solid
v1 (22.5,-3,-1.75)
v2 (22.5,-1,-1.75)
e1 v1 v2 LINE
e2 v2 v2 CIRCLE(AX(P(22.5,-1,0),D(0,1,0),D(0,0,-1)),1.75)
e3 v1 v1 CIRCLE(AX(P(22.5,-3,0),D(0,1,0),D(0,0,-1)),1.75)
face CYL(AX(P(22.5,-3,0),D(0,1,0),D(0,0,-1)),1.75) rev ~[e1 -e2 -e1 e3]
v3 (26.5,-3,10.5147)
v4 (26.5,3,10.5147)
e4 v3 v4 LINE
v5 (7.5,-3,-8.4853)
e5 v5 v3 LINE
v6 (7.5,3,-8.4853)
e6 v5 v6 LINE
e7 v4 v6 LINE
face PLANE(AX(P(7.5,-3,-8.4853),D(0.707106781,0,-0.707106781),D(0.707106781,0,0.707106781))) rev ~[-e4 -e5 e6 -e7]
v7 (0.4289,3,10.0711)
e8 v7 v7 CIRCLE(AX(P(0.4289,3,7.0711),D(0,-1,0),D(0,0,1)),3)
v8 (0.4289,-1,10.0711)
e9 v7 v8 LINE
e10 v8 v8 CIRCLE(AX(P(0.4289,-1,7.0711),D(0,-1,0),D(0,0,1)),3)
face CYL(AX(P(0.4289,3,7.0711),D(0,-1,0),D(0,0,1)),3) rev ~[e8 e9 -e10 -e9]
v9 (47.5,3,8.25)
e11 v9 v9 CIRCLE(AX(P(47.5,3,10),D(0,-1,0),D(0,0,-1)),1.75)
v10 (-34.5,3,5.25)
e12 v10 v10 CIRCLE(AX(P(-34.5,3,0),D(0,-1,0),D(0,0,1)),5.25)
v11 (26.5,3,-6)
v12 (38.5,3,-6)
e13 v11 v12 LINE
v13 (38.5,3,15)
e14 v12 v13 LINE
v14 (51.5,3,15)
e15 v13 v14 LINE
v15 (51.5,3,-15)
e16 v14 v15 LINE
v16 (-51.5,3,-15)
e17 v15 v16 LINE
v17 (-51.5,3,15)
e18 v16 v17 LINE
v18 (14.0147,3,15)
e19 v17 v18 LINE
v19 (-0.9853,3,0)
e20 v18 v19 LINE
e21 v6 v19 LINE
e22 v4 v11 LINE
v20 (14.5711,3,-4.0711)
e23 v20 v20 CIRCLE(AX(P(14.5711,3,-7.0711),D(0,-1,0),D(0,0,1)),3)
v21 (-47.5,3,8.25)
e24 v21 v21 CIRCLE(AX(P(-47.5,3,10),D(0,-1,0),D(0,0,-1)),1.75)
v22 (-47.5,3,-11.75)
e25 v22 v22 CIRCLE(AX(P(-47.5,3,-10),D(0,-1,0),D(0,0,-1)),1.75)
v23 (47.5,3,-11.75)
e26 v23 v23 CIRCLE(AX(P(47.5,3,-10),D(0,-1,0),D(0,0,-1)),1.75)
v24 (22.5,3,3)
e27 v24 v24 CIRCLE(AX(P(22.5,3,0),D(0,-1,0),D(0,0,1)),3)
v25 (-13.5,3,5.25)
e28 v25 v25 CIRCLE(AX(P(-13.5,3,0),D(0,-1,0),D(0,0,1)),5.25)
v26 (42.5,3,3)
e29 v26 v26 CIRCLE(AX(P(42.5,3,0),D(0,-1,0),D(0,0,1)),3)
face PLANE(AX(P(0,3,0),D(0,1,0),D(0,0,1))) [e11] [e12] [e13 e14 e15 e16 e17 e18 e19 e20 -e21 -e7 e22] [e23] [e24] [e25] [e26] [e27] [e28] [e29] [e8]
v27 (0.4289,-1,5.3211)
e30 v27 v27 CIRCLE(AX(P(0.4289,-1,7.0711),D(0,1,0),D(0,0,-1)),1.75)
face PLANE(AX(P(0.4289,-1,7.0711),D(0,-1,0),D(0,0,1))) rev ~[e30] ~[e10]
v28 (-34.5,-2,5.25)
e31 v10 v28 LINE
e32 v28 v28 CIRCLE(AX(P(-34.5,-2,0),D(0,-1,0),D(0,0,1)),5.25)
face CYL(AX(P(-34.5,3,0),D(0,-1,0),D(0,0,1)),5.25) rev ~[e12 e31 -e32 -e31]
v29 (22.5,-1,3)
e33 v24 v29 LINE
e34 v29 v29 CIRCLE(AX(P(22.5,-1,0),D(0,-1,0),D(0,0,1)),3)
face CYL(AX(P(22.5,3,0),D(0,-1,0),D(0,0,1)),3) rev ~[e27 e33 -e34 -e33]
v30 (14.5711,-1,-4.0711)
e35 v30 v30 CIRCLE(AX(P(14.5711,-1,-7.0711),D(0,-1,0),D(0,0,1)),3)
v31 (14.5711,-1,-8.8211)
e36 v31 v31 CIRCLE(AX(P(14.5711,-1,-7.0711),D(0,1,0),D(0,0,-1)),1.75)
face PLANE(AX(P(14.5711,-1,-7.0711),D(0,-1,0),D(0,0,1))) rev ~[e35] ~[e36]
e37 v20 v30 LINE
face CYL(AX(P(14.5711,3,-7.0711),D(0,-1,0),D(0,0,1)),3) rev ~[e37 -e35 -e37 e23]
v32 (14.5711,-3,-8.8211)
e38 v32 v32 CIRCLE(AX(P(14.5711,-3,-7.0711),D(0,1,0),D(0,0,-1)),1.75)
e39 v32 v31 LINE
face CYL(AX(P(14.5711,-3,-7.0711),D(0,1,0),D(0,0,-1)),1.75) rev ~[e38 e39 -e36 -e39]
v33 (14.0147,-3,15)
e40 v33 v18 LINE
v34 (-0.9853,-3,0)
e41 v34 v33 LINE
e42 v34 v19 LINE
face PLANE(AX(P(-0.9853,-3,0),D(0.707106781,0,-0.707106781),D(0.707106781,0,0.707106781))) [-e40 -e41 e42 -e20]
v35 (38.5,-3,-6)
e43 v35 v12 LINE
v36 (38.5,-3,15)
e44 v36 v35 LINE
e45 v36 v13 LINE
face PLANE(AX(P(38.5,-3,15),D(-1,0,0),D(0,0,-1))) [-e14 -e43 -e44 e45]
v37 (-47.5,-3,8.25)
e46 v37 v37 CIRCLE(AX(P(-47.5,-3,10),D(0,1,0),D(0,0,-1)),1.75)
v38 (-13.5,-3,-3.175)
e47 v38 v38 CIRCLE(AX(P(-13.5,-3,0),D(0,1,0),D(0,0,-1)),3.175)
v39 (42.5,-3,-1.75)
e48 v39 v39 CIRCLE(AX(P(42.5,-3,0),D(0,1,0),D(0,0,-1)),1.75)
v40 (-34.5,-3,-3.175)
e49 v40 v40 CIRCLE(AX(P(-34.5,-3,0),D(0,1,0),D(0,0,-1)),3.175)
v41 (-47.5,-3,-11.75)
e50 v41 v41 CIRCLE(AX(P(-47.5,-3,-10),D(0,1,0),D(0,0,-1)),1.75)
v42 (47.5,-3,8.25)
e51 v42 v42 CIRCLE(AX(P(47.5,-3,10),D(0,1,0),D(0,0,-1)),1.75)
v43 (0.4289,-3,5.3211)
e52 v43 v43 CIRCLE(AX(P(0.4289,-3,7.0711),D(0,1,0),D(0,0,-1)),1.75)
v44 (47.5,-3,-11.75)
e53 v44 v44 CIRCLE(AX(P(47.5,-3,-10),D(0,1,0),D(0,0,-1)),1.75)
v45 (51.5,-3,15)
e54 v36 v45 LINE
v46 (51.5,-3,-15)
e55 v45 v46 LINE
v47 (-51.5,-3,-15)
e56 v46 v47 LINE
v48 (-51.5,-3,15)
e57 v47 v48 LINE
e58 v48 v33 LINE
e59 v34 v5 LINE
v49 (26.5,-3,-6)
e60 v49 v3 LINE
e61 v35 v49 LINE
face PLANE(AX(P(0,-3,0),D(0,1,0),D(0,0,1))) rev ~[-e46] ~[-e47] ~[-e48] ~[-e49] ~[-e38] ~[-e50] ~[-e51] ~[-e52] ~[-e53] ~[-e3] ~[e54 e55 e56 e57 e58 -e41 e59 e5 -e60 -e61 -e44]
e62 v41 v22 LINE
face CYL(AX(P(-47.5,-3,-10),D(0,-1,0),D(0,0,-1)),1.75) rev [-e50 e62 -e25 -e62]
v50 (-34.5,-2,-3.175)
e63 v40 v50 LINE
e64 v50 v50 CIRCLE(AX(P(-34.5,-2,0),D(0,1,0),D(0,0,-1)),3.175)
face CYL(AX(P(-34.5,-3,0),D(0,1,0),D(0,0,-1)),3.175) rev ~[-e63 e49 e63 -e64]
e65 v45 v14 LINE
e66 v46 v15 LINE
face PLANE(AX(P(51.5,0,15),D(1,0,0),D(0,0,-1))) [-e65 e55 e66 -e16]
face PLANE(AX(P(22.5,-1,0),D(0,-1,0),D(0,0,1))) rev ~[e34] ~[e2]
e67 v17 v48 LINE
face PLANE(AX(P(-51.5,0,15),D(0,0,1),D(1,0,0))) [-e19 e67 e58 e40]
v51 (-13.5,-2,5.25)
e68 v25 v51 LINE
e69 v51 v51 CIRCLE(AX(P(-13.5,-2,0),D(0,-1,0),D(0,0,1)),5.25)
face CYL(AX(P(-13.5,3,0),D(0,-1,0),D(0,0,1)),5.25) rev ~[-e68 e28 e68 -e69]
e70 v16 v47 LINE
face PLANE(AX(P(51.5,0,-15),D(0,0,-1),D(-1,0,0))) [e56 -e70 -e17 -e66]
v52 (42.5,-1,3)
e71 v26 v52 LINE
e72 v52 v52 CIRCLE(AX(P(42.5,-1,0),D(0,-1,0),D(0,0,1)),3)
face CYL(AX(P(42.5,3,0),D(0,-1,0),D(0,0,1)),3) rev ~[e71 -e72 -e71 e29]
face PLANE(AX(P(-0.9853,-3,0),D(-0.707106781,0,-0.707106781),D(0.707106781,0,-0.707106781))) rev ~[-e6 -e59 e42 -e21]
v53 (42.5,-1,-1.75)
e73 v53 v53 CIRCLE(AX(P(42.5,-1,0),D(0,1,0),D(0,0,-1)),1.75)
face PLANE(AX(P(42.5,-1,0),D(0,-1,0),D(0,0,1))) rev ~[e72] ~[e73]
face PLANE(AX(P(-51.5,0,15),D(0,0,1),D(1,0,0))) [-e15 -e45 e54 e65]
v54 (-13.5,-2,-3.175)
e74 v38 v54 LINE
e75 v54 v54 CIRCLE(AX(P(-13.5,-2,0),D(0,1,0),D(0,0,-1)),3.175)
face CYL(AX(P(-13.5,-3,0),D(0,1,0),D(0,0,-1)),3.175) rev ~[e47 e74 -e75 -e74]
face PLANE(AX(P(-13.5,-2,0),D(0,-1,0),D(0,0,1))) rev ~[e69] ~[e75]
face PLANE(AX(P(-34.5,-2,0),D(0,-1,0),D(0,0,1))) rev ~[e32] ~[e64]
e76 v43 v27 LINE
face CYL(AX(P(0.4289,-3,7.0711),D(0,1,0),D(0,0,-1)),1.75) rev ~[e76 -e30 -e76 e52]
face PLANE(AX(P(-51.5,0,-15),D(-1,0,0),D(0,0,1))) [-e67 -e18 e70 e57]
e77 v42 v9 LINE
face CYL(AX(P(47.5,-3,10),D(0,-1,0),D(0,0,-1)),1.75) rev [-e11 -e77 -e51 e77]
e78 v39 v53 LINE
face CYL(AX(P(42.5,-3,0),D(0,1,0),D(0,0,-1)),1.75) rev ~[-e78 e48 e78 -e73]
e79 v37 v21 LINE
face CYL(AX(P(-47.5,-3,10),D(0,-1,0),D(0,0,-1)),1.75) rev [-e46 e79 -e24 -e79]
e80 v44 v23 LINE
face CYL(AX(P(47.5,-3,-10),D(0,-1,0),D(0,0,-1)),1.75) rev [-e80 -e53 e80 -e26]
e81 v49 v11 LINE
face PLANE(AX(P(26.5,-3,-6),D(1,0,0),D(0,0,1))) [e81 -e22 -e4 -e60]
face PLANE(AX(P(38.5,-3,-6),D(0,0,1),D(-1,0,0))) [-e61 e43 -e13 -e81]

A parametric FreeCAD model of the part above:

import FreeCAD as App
import Part
import Sketcher
from FreeCAD import Vector
Q = App.Units.Quantity

doc = App.newDocument("Part")
body = doc.addObject("PartDesign::Body", "Body")

# Sketch on XZ plane
sketch1 = body.newObject("Sketcher::SketchObject", "Sketch")
sketch1.AttachmentSupport = (doc.getObject("XZ_Plane"), [""])
sketch1.MapMode = "FlatFace"
sketch1.addGeometry([
    Part.LineSegment(Vector(52, 15, 0), Vector(-52, 15, 0)),
    Part.LineSegment(Vector(-52, 15, 0), Vector(-52, -15, 0)),
    Part.LineSegment(Vector(-52, -15, 0), Vector(52, -15, 0)),
    Part.LineSegment(Vector(52, -15, 0), Vector(52, 15, 0)),
], False)
sketch1.addConstraint([
    Sketcher.Constraint("Coincident", 0, 2, 1, 1),
    Sketcher.Constraint("Coincident", 1, 2, 2, 1),
    Sketcher.Constraint("Coincident", 2, 2, 3, 1),
    Sketcher.Constraint("Coincident", 3, 2, 0, 1),
    Sketcher.Constraint("Horizontal", 0),
    Sketcher.Constraint("Vertical", 1),
    Sketcher.Constraint("Horizontal", 2),
    Sketcher.Constraint("Vertical", 3),
    Sketcher.Constraint("Symmetric", 0, 2, 2, 2, -1, 1),
    Sketcher.Constraint("DistanceX", 0, 2, -1, 1, Q("51.5 mm")),
    Sketcher.Constraint("DistanceY", 1, 2, 1, 1, Q("30 mm")),
])
pad1 = body.newObject("PartDesign::Pad", "Pad")
pad1.Profile = sketch1
pad1.Length = 6
pad1.Midplane = True

# Sketch on XZ plane
sketch2 = body.newObject("Sketcher::SketchObject", "Sketch001")
sketch2.AttachmentSupport = (doc.getObject("XZ_Plane"), [""])
sketch2.MapMode = "FlatFace"
sketch2.AttachmentOffset = App.Placement(Vector(0, 0, 3), App.Rotation())
sketch2.addGeometry(Part.Circle(Vector(47.5, 10, 0), Vector(0, 0, 1), 1.8), False)
sketch2.addConstraint([
    Sketcher.Constraint("Diameter", 0, Q("3.5 mm")),
    Sketcher.Constraint("DistanceY", -1, 1, 0, 3, Q("10 mm")),
    Sketcher.Constraint("DistanceX", -1, 1, 0, 3, Q("47.5 mm")),
])
doc.recompute()
hole = body.newObject("PartDesign::Hole", "Hole")
hole.Profile = sketch2
hole.ThreadType = "None"
hole.Diameter = 3.5
hole.DepthType = "ThroughAll"

# Sketch on XZ plane
sketch3 = body.newObject("Sketcher::SketchObject", "Sketch002")
sketch3.AttachmentSupport = (doc.getObject("XZ_Plane"), [""])
sketch3.MapMode = "FlatFace"
sketch3.AttachmentOffset = App.Placement(Vector(0, 0, 3), App.Rotation())
sketch3.addGeometry(Part.Circle(Vector(47.5, -10, 0), Vector(0, 0, 1), 1.8), False)
sketch3.addConstraint([
    Sketcher.Constraint("Diameter", 0, Q("3.5 mm")),
    Sketcher.Constraint("DistanceY", 0, 3, -1, 1, Q("10 mm")),
    Sketcher.Constraint("DistanceX", -1, 1, 0, 3, Q("47.5 mm")),
])
doc.recompute()
hole2 = body.newObject("PartDesign::Hole", "Hole001")
hole2.Profile = sketch3
hole2.ThreadType = "None"
hole2.Diameter = 3.5
hole2.DepthType = "ThroughAll"

# Sketch on XZ plane
sketch4 = body.newObject("Sketcher::SketchObject", "Sketch003")
sketch4.AttachmentSupport = (doc.getObject("XZ_Plane"), [""])
sketch4.MapMode = "FlatFace"
sketch4.AttachmentOffset = App.Placement(Vector(0, 0, 3), App.Rotation())
sketch4.addGeometry(Part.Circle(Vector(-47.5, -10, 0), Vector(0, 0, 1), 1.8), False)
sketch4.addConstraint([
    Sketcher.Constraint("Diameter", 0, Q("3.5 mm")),
    Sketcher.Constraint("DistanceY", 0, 3, -1, 1, Q("10 mm")),
    Sketcher.Constraint("DistanceX", 0, 3, -1, 1, Q("47.5 mm")),
])
doc.recompute()
hole3 = body.newObject("PartDesign::Hole", "Hole002")
hole3.Profile = sketch4
hole3.ThreadType = "None"
hole3.Diameter = 3.5
hole3.DepthType = "ThroughAll"

# Sketch on XZ plane
sketch5 = body.newObject("Sketcher::SketchObject", "Sketch004")
sketch5.AttachmentSupport = (doc.getObject("XZ_Plane"), [""])
sketch5.MapMode = "FlatFace"
sketch5.AttachmentOffset = App.Placement(Vector(0, 0, 3), App.Rotation())
sketch5.addGeometry(Part.Circle(Vector(-47.5, 10, 0), Vector(0, 0, 1), 1.8), False)
sketch5.addConstraint([
    Sketcher.Constraint("Diameter", 0, Q("3.5 mm")),
    Sketcher.Constraint("DistanceY", -1, 1, 0, 3, Q("10 mm")),
    Sketcher.Constraint("DistanceX", 0, 3, -1, 1, Q("47.5 mm")),
])
doc.recompute()
hole4 = body.newObject("PartDesign::Hole", "Hole003")
hole4.Profile = sketch5
hole4.ThreadType = "None"
hole4.Diameter = 3.5
hole4.DepthType = "ThroughAll"

# Sketch on XZ plane
sketch6 = body.newObject("Sketcher::SketchObject", "Sketch005")
sketch6.AttachmentSupport = (doc.getObject("XZ_Plane"), [""])
sketch6.MapMode = "FlatFace"
sketch6.AttachmentOffset = App.Placement(Vector(0, 0, 3), App.Rotation())
sketch6.addGeometry([
    Part.LineSegment(Vector(38, 15, 0), Vector(26, 15, 0)),
    Part.LineSegment(Vector(26, 15, 0), Vector(26, -6, 0)),
    Part.LineSegment(Vector(26, -6, 0), Vector(38, -6, 0)),
    Part.LineSegment(Vector(38, -6, 0), Vector(38, 15, 0)),
], False)
sketch6.addConstraint([
    Sketcher.Constraint("Coincident", 0, 2, 1, 1),
    Sketcher.Constraint("Coincident", 1, 2, 2, 1),
    Sketcher.Constraint("Coincident", 2, 2, 3, 1),
    Sketcher.Constraint("Coincident", 3, 2, 0, 1),
    Sketcher.Constraint("Horizontal", 0),
    Sketcher.Constraint("Vertical", 1),
    Sketcher.Constraint("Horizontal", 2),
    Sketcher.Constraint("Vertical", 3),
    Sketcher.Constraint("DistanceX", -1, 1, 0, 2, Q("26.5 mm")),
    Sketcher.Constraint("DistanceX", -1, 1, 2, 2, Q("38.5 mm")),
    Sketcher.Constraint("DistanceY", 1, 2, 1, 1, Q("21 mm")),
    Sketcher.Constraint("DistanceY", -1, 1, 0, 2, Q("15 mm")),
])
pocket1 = body.newObject("PartDesign::Pocket", "Pocket")
pocket1.Profile = sketch6
pocket1.Length = 168.275

# Sketch on XZ plane
sketch7 = body.newObject("Sketcher::SketchObject", "Sketch006")
sketch7.AttachmentSupport = (doc.getObject("XZ_Plane"), [""])
sketch7.MapMode = "FlatFace"
sketch7.AttachmentOffset = App.Placement(Vector(0, 0, 3), App.Rotation())
sketch7.addGeometry(Part.Circle(Vector(22.5, 0, 0), Vector(0, 0, 1), 1.8), False)
sketch7.addConstraint([
    Sketcher.Constraint("PointOnObject", 0, 3, -1),
    Sketcher.Constraint("Diameter", 0, Q("3.5 mm")),
    Sketcher.Constraint("DistanceX", -1, 1, 0, 3, Q("22.5 mm")),
])
doc.recompute()
hole5 = body.newObject("PartDesign::Hole", "Hole004")
hole5.Profile = sketch7
hole5.ThreadType = "None"
hole5.Diameter = 3.5
hole5.DepthType = "Dimension"
hole5.Depth = 2
hole5.DrillPoint = "Flat"

# Sketch on XZ plane
sketch8 = body.newObject("Sketcher::SketchObject", "Sketch007")
sketch8.AttachmentSupport = (doc.getObject("XZ_Plane"), [""])
sketch8.MapMode = "FlatFace"
sketch8.AttachmentOffset = App.Placement(Vector(0, 0, 3), App.Rotation())
sketch8.addGeometry(Part.Circle(Vector(42.5, 0, 0), Vector(0, 0, 1), 1.8), False)
sketch8.addConstraint([
    Sketcher.Constraint("PointOnObject", 0, 3, -1),
    Sketcher.Constraint("Diameter", 0, Q("3.5 mm")),
    Sketcher.Constraint("DistanceX", -1, 1, 0, 3, Q("42.5 mm")),
])
doc.recompute()
hole6 = body.newObject("PartDesign::Hole", "Hole005")
hole6.Profile = sketch8
hole6.ThreadType = "None"
hole6.Diameter = 3.5
hole6.DepthType = "Dimension"
hole6.Depth = 2
hole6.DrillPoint = "Flat"

# Sketch on XZ plane
sketch9 = body.newObject("Sketcher::SketchObject", "Sketch008")
sketch9.AttachmentSupport = (doc.getObject("XZ_Plane"), [""])
sketch9.MapMode = "FlatFace"
sketch9.AttachmentOffset = App.Placement(Vector(0, 0, 3), App.Rotation())
sketch9.addGeometry(Part.Circle(Vector(-34.5, 0, 0), Vector(0, 0, 1), 3.2), False)
sketch9.addConstraint([
    Sketcher.Constraint("PointOnObject", 0, 3, -1),
    Sketcher.Constraint("Diameter", 0, Q("6.35 mm")),
    Sketcher.Constraint("DistanceX", 0, 3, -1, 1, Q("34.5 mm")),
])
doc.recompute()
hole7 = body.newObject("PartDesign::Hole", "Hole006")
hole7.Profile = sketch9
hole7.ThreadType = "None"
hole7.Diameter = 6.35
hole7.DepthType = "Dimension"
hole7.Depth = 1
hole7.DrillPoint = "Flat"

# Sketch on XZ plane
sketch10 = body.newObject("Sketcher::SketchObject", "Sketch009")
sketch10.AttachmentSupport = (doc.getObject("XZ_Plane"), [""])
sketch10.MapMode = "FlatFace"
sketch10.AttachmentOffset = App.Placement(Vector(0, 0, 3), App.Rotation())
sketch10.addGeometry(Part.Circle(Vector(-13.5, 0, 0), Vector(0, 0, 1), 3.2), False)
sketch10.addConstraint([
    Sketcher.Constraint("PointOnObject", 0, 3, -1),
    Sketcher.Constraint("Diameter", 0, Q("6.35 mm")),
    Sketcher.Constraint("DistanceX", 0, 3, -1, 1, Q("13.5 mm")),
])
doc.recompute()
hole8 = body.newObject("PartDesign::Hole", "Hole007")
hole8.Profile = sketch10
hole8.ThreadType = "None"
hole8.Diameter = 6.35
hole8.DepthType = "Dimension"
hole8.Depth = 1
hole8.DrillPoint = "Flat"

# Sketch on XZ plane
sketch11 = body.newObject("Sketcher::SketchObject", "Sketch010")
sketch11.AttachmentSupport = (doc.getObject("XZ_Plane"), [""])
sketch11.MapMode = "FlatFace"
sketch11.AttachmentOffset = App.Placement(Vector(0, 0, 3), App.Rotation())
sketch11.addGeometry([
    Part.LineSegment(Vector(14, 15, 0), Vector(-1, 0, 0)),
    Part.LineSegment(Vector(-1, 0, 0), Vector(8, -8, 0)),
    Part.LineSegment(Vector(8, -8, 0), Vector(31, 15, 0)),
    Part.LineSegment(Vector(31, 15, 0), Vector(14, 15, 0)),
], False)
sketch11.addConstraint([
    Sketcher.Constraint("Coincident", 0, 2, 1, 1),
    Sketcher.Constraint("Coincident", 1, 2, 2, 1),
    Sketcher.Constraint("Coincident", 2, 2, 3, 1),
    Sketcher.Constraint("Coincident", 3, 2, 0, 1),
    Sketcher.Constraint("Horizontal", 3),
    Sketcher.Constraint("PointOnObject", 0, 2, -1),
    Sketcher.Constraint("Perpendicular", 0, 1),
    Sketcher.Constraint("Perpendicular", 1, 2),
    Sketcher.Constraint("Angle", 0, Q("-135 deg")),
    Sketcher.Constraint("Distance", 1, Q("12 mm")),
    Sketcher.Constraint("DistanceY", -1, 1, 2, 2, Q("15 mm")),
    Sketcher.Constraint("DistanceX", 0, 2, -1, 1, Q("0.9853 mm")),
])
pocket2 = body.newObject("PartDesign::Pocket", "Pocket001")
pocket2.Profile = sketch11
pocket2.Length = 285.75

# Sketch on XZ plane
sketch12 = body.newObject("Sketcher::SketchObject", "Sketch011")
sketch12.AttachmentSupport = (doc.getObject("XZ_Plane"), [""])
sketch12.MapMode = "FlatFace"
sketch12.AttachmentOffset = App.Placement(Vector(0, 0, 3), App.Rotation())
sketch12.addGeometry(Part.Circle(Vector(14.6, -7.1, 0), Vector(0, 0, 1), 1.8), False)
sketch12.addConstraint([
    Sketcher.Constraint("Diameter", 0, Q("3.5 mm")),
    Sketcher.Constraint("DistanceX", -1, 1, 0, 3, Q("14.571 mm")),
    Sketcher.Constraint("DistanceY", 0, 3, -1, 1, Q("7.071 mm")),
])
doc.recompute()
hole9 = body.newObject("PartDesign::Hole", "Hole008")
hole9.Profile = sketch12
hole9.ThreadType = "None"
hole9.Diameter = 3.5
hole9.DepthType = "Dimension"
hole9.Depth = 2
hole9.DrillPoint = "Flat"

# Sketch on XZ plane
sketch13 = body.newObject("Sketcher::SketchObject", "Sketch012")
sketch13.AttachmentSupport = (doc.getObject("XZ_Plane"), [""])
sketch13.MapMode = "FlatFace"
sketch13.AttachmentOffset = App.Placement(Vector(0, 0, 3), App.Rotation())
sketch13.addGeometry(Part.Circle(Vector(0.4, 7.1, 0), Vector(0, 0, 1), 1.8), False)
sketch13.addConstraint([
    Sketcher.Constraint("Diameter", 0, Q("3.5 mm")),
    Sketcher.Constraint("DistanceX", -1, 1, 0, 3, Q("0.429 mm")),
    Sketcher.Constraint("DistanceY", -1, 1, 0, 3, Q("7.071 mm")),
])
doc.recompute()
hole10 = body.newObject("PartDesign::Hole", "Hole009")
hole10.Profile = sketch13
hole10.ThreadType = "None"
hole10.Diameter = 3.5
hole10.DepthType = "Dimension"
hole10.Depth = 2
hole10.DrillPoint = "Flat"

# Sketch on XZ plane
sketch14 = body.newObject("Sketcher::SketchObject", "Sketch013")
sketch14.AttachmentSupport = (doc.getObject("XZ_Plane"), [""])
sketch14.MapMode = "FlatFace"
sketch14.AttachmentOffset = App.Placement(Vector(0, 0, -3), App.Rotation())
sketch14.addGeometry(Part.Circle(Vector(-34, 0, 0), Vector(0, 0, 1), 5), False)
sketch14.addConstraint([
    Sketcher.Constraint("PointOnObject", 0, 3, -1),
    Sketcher.Constraint("Diameter", 0, Q("10.5 mm")),
    Sketcher.Constraint("DistanceX", 0, 3, -1, 1, Q("34.5 mm")),
])
doc.recompute()
hole11 = body.newObject("PartDesign::Hole", "Hole010")
hole11.Profile = sketch14
hole11.ThreadType = "None"
hole11.Diameter = 10.5
hole11.DepthType = "Dimension"
hole11.Depth = 5
hole11.DrillPoint = "Flat"
hole11.Reversed = True

# Sketch on XZ plane
sketch15 = body.newObject("Sketcher::SketchObject", "Sketch014")
sketch15.AttachmentSupport = (doc.getObject("XZ_Plane"), [""])
sketch15.MapMode = "FlatFace"
sketch15.AttachmentOffset = App.Placement(Vector(0, 0, -3), App.Rotation())
sketch15.addGeometry(Part.Circle(Vector(-14, 0, 0), Vector(0, 0, 1), 5), False)
sketch15.addConstraint([
    Sketcher.Constraint("PointOnObject", 0, 3, -1),
    Sketcher.Constraint("Diameter", 0, Q("10.5 mm")),
    Sketcher.Constraint("DistanceX", 0, 3, -1, 1, Q("13.5 mm")),
])
doc.recompute()
hole12 = body.newObject("PartDesign::Hole", "Hole011")
hole12.Profile = sketch15
hole12.ThreadType = "None"
hole12.Diameter = 10.5
hole12.DepthType = "Dimension"
hole12.Depth = 5
hole12.DrillPoint = "Flat"
hole12.Reversed = True

# Sketch on XZ plane
sketch16 = body.newObject("Sketcher::SketchObject", "Sketch015")
sketch16.AttachmentSupport = (doc.getObject("XZ_Plane"), [""])
sketch16.MapMode = "FlatFace"
sketch16.AttachmentOffset = App.Placement(Vector(0, 0, -3), App.Rotation())
sketch16.addGeometry(Part.Circle(Vector(14.6, -7.1, 0), Vector(0, 0, 1), 3), False)
sketch16.addConstraint([
    Sketcher.Constraint("Diameter", 0, Q("6 mm")),
    Sketcher.Constraint("DistanceX", -1, 1, 0, 3, Q("14.571 mm")),
    Sketcher.Constraint("DistanceY", 0, 3, -1, 1, Q("7.071 mm")),
])
doc.recompute()
hole13 = body.newObject("PartDesign::Hole", "Hole012")
hole13.Profile = sketch16
hole13.ThreadType = "None"
hole13.Diameter = 6
hole13.DepthType = "Dimension"
hole13.Depth = 4
hole13.DrillPoint = "Flat"
hole13.Reversed = True

# Sketch on XZ plane
sketch17 = body.newObject("Sketcher::SketchObject", "Sketch016")
sketch17.AttachmentSupport = (doc.getObject("XZ_Plane"), [""])
sketch17.MapMode = "FlatFace"
sketch17.AttachmentOffset = App.Placement(Vector(0, 0, -3), App.Rotation())
sketch17.addGeometry(Part.Circle(Vector(0.4, 7.1, 0), Vector(0, 0, 1), 3), False)
sketch17.addConstraint([
    Sketcher.Constraint("Diameter", 0, Q("6 mm")),
    Sketcher.Constraint("DistanceX", -1, 1, 0, 3, Q("0.429 mm")),
    Sketcher.Constraint("DistanceY", -1, 1, 0, 3, Q("7.071 mm")),
])
doc.recompute()
hole14 = body.newObject("PartDesign::Hole", "Hole013")
hole14.Profile = sketch17
hole14.ThreadType = "None"
hole14.Diameter = 6
hole14.DepthType = "Dimension"
hole14.Depth = 4
hole14.DrillPoint = "Flat"
hole14.Reversed = True

# Sketch on XZ plane
sketch18 = body.newObject("Sketcher::SketchObject", "Sketch017")
sketch18.AttachmentSupport = (doc.getObject("XZ_Plane"), [""])
sketch18.MapMode = "FlatFace"
sketch18.AttachmentOffset = App.Placement(Vector(0, 0, -3), App.Rotation())
sketch18.addGeometry(Part.Circle(Vector(22.5, 0, 0), Vector(0, 0, 1), 3), False)
sketch18.addConstraint([
    Sketcher.Constraint("PointOnObject", 0, 3, -1),
    Sketcher.Constraint("Diameter", 0, Q("6 mm")),
    Sketcher.Constraint("DistanceX", -1, 1, 0, 3, Q("22.5 mm")),
])
doc.recompute()
hole15 = body.newObject("PartDesign::Hole", "Hole014")
hole15.Profile = sketch18
hole15.ThreadType = "None"
hole15.Diameter = 6
hole15.DepthType = "Dimension"
hole15.Depth = 4
hole15.DrillPoint = "Flat"
hole15.Reversed = True

# Sketch on XZ plane
sketch19 = body.newObject("Sketcher::SketchObject", "Sketch018")
sketch19.AttachmentSupport = (doc.getObject("XZ_Plane"), [""])
sketch19.MapMode = "FlatFace"
sketch19.AttachmentOffset = App.Placement(Vector(0, 0, -3), App.Rotation())
sketch19.addGeometry(Part.Circle(Vector(42.5, 0, 0), Vector(0, 0, 1), 3), False)
sketch19.addConstraint([
    Sketcher.Constraint("PointOnObject", 0, 3, -1),
    Sketcher.Constraint("Diameter", 0, Q("6 mm")),
    Sketcher.Constraint("DistanceX", -1, 1, 0, 3, Q("42.5 mm")),
])
doc.recompute()
hole16 = body.newObject("PartDesign::Hole", "Hole015")
hole16.Profile = sketch19
hole16.ThreadType = "None"
hole16.Diameter = 6
hole16.DepthType = "Dimension"
hole16.Depth = 4
hole16.DrillPoint = "Flat"
hole16.Reversed = True

doc.recompute()
